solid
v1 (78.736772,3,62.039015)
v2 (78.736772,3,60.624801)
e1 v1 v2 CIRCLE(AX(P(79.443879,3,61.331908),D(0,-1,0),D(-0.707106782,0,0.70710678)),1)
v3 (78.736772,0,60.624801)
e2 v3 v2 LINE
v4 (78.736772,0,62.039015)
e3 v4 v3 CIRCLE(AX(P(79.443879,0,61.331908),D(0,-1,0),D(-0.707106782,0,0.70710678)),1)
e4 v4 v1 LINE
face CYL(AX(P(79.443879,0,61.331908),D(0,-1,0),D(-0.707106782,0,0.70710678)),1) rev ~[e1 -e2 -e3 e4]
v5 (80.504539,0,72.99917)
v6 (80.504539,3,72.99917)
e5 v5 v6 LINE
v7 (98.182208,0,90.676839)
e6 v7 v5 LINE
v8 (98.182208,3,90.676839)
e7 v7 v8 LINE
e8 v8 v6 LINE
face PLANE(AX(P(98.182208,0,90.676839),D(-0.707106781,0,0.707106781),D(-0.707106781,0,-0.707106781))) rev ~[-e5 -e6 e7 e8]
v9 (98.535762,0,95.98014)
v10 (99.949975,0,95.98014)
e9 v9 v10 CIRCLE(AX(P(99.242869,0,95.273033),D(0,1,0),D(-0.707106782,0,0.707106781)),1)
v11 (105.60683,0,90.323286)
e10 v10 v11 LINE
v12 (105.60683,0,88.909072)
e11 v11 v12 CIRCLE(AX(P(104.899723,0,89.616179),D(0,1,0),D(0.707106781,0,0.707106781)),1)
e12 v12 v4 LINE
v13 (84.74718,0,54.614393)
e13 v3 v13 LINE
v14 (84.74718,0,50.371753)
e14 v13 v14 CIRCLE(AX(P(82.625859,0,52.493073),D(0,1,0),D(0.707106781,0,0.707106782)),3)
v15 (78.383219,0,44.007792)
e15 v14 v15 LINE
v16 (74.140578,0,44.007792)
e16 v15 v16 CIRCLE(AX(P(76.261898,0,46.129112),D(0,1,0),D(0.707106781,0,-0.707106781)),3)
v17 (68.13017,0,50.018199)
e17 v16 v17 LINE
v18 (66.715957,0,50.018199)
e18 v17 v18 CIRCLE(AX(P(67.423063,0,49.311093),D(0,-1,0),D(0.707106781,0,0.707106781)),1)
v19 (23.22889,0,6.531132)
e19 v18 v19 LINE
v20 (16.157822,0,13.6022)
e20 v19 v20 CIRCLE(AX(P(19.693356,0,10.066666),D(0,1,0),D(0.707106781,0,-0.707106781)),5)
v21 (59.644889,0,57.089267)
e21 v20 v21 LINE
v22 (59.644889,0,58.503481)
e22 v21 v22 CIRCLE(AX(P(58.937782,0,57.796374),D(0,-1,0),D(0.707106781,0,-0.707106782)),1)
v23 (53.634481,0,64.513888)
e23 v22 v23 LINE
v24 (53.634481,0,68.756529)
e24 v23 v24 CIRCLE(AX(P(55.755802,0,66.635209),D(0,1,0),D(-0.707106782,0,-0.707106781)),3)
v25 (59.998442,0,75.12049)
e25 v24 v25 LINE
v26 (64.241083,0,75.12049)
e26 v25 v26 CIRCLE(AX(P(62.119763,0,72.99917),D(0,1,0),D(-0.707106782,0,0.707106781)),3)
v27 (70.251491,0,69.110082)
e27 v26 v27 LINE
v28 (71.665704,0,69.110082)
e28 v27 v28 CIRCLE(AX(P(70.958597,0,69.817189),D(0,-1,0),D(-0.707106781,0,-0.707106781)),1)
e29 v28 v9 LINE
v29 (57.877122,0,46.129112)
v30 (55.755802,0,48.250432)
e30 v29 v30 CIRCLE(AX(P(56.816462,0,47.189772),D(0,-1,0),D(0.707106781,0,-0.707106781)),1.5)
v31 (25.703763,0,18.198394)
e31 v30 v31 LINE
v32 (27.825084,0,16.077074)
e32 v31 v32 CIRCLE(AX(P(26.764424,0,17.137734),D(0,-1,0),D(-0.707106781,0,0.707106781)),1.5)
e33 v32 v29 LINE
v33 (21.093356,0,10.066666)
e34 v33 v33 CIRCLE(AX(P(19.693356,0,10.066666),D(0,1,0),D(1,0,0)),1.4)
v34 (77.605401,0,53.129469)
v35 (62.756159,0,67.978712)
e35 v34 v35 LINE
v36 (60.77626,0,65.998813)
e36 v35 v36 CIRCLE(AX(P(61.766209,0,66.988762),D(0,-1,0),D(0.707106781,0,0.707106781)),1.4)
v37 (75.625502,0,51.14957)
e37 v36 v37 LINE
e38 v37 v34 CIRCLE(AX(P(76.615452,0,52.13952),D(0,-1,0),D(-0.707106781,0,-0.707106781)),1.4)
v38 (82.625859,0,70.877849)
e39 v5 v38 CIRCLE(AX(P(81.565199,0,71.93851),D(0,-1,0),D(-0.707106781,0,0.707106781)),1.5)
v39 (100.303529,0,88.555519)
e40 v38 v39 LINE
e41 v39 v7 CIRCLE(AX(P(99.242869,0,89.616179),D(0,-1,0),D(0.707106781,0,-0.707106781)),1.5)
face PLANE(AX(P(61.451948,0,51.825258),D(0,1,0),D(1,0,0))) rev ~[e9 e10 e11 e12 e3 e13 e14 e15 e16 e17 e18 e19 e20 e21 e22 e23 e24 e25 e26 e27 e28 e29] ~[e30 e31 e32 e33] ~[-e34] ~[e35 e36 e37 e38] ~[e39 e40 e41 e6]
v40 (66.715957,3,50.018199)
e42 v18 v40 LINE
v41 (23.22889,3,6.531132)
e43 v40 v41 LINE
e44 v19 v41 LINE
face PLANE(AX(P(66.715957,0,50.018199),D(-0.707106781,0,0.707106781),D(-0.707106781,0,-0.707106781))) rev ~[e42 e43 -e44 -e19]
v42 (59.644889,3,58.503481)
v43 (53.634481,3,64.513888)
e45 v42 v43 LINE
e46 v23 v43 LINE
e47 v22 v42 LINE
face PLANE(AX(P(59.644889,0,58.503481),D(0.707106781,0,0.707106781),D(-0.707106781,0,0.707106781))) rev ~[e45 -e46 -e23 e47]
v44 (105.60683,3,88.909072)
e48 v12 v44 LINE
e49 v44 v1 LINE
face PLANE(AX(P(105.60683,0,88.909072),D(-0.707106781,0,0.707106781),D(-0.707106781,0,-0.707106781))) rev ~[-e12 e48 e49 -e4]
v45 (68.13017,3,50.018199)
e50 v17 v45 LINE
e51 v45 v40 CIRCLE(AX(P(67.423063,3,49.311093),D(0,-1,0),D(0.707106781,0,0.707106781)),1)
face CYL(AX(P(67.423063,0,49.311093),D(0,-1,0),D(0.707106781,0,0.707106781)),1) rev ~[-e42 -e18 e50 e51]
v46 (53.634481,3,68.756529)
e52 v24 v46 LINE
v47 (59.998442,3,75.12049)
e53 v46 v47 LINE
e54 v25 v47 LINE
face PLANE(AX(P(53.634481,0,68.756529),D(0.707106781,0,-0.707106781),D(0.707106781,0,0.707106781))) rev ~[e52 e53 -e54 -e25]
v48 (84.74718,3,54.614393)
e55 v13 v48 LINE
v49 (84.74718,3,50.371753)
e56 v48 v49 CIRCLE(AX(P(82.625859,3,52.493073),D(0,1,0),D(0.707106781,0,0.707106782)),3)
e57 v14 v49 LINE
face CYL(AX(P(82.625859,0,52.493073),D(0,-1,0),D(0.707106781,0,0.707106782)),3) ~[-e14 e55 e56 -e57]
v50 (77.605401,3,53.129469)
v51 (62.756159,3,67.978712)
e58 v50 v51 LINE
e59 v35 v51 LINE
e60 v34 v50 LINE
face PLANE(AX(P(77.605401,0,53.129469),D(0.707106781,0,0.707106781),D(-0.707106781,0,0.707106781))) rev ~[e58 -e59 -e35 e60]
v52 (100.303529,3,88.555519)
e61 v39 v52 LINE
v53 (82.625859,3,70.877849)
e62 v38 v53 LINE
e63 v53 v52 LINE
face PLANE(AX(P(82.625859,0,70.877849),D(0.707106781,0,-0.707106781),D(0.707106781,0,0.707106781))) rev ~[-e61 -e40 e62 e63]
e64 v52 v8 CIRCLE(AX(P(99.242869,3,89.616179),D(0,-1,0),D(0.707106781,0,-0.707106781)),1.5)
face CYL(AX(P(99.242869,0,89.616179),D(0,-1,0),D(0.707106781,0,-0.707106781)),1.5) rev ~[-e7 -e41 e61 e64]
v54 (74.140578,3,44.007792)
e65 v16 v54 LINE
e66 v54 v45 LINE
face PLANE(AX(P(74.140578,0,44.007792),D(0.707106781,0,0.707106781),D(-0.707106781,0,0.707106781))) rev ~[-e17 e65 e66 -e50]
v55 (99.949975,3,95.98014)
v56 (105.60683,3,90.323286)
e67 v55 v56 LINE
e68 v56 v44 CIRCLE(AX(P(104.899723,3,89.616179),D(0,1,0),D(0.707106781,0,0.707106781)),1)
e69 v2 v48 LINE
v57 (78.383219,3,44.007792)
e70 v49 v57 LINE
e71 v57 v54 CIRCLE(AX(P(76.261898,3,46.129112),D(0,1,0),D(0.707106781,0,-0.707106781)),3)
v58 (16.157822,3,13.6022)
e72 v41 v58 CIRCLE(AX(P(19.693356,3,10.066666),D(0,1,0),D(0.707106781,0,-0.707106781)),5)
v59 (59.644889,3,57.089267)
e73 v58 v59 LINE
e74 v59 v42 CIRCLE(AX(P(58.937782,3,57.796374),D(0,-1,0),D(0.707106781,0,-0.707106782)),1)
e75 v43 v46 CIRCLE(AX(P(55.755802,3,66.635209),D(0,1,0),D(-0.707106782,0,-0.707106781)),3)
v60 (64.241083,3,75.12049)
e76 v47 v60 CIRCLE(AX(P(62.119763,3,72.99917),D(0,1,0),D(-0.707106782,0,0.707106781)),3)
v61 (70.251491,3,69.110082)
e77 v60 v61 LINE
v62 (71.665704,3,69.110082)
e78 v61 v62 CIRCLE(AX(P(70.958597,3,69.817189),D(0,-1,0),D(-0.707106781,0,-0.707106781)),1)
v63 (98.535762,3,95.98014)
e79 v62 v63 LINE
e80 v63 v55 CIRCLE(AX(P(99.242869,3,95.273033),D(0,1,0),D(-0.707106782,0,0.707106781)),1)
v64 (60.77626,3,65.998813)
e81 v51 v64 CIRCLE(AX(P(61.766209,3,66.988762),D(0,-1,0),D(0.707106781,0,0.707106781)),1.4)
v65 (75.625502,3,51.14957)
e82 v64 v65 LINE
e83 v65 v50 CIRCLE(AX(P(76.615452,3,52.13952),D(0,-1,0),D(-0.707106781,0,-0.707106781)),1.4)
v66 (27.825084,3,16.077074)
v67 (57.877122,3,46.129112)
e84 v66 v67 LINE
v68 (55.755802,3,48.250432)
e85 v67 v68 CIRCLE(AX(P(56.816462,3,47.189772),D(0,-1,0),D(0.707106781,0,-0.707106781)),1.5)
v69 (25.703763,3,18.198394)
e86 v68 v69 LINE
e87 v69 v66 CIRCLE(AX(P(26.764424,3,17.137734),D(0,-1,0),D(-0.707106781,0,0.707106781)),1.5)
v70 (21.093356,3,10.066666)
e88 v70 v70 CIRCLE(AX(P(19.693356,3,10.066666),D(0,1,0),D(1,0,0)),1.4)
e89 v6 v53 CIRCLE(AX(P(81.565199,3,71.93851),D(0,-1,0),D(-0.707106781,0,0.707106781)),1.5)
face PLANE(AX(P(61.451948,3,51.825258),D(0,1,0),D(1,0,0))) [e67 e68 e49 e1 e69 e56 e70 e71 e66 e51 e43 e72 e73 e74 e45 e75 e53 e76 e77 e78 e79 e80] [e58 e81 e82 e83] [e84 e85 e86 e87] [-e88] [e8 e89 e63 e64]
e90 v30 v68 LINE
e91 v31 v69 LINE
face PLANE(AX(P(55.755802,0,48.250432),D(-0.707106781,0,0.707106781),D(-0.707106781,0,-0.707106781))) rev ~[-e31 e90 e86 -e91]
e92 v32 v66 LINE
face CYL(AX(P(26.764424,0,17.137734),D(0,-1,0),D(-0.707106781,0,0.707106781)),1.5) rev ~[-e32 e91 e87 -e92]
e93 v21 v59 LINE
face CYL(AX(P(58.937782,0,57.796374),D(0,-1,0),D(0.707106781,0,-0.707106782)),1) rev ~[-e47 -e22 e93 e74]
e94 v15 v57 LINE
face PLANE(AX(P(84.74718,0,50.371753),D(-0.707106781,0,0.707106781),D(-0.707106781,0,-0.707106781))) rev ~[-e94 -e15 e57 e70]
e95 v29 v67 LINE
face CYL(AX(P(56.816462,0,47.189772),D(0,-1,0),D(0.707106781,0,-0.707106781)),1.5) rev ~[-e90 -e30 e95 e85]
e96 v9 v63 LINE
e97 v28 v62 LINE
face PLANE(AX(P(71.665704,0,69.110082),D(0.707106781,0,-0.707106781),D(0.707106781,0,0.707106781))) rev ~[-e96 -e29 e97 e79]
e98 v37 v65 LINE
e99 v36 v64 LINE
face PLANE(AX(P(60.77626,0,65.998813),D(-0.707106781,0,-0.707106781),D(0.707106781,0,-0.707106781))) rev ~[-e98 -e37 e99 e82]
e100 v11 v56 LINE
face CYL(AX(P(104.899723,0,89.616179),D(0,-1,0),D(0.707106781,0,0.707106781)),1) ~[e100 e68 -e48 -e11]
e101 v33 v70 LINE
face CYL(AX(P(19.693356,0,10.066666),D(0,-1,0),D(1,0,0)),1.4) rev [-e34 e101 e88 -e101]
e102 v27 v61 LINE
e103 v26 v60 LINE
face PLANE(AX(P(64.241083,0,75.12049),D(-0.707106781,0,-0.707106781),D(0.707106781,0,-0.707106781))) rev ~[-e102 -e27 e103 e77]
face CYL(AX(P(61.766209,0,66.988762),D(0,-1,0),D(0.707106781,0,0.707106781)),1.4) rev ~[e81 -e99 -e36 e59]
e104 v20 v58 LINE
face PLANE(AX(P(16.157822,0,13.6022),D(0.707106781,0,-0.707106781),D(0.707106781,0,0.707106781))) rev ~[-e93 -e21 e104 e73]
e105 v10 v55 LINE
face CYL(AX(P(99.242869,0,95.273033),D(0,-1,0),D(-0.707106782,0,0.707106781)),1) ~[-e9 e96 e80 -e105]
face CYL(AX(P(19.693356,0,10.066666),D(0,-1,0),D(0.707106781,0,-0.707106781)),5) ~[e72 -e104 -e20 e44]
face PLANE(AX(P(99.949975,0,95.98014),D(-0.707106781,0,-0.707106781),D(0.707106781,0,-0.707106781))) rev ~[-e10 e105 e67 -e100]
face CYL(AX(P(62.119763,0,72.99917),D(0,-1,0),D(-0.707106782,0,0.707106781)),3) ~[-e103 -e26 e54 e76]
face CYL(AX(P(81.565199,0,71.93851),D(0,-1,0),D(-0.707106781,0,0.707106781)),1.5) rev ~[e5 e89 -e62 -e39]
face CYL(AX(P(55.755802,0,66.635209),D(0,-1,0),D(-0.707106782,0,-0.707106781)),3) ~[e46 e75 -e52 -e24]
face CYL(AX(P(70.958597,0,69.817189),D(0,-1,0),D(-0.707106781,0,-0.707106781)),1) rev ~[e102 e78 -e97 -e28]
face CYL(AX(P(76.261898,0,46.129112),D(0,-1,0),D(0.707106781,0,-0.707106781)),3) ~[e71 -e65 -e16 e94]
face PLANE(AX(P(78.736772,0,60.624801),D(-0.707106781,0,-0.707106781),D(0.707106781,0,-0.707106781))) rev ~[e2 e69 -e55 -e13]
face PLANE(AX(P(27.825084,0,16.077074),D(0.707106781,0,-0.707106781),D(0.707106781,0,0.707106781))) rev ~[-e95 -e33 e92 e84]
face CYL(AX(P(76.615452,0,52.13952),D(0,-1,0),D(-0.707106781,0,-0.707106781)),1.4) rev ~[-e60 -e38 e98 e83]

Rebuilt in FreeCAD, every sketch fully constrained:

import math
import FreeCAD as App
import Part
import Sketcher

doc = App.newDocument("Part")
body = doc.addObject("PartDesign::Body", "Body")

sketch1 = body.newObject("Sketcher::SketchObject", "Sketch")
sketch1.AttachmentSupport = (doc.getObject("XZ_Plane"), [""])
sketch1.MapMode = "FlatFace"
sketch1.addGeometry([
    Part.LineSegment(App.Vector(66.7, 50, 0), App.Vector(23.2, 6.5, 0)),
    Part.ArcOfCircle(Part.Circle(App.Vector(19.7, 10.1, 0), App.Vector(0, 0, 1), 5), math.radians(135), math.radians(315)),
    Part.LineSegment(App.Vector(16.2, 13.6, 0), App.Vector(59.6, 57.1, 0)),
    Part.ArcOfCircle(Part.Circle(App.Vector(58.9, 57.8, 0), App.Vector(0, 0, 1), 1), math.radians(-45), math.radians(45)),
    Part.LineSegment(App.Vector(59.6, 58.5, 0), App.Vector(53.6, 64.5, 0)),
    Part.ArcOfCircle(Part.Circle(App.Vector(55.8, 66.6, 0), App.Vector(0, 0, 1), 3), math.radians(135), math.radians(225)),
    Part.LineSegment(App.Vector(53.6, 68.8, 0), App.Vector(60, 75.1, 0)),
    Part.ArcOfCircle(Part.Circle(App.Vector(62.1, 73, 0), App.Vector(0, 0, 1), 3), math.radians(45), math.radians(135)),
    Part.LineSegment(App.Vector(64.2, 75.1, 0), App.Vector(70.3, 69.1, 0)),
    Part.ArcOfCircle(Part.Circle(App.Vector(71, 69.8, 0), App.Vector(0, 0, 1), 1), math.radians(-135), math.radians(-45)),
    Part.LineSegment(App.Vector(71.7, 69.1, 0), App.Vector(98.5, 96, 0)),
    Part.ArcOfCircle(Part.Circle(App.Vector(99.2, 95.3, 0), App.Vector(0, 0, 1), 1), math.radians(45), math.radians(135)),
    Part.LineSegment(App.Vector(99.9, 96, 0), App.Vector(105.6, 90.3, 0)),
    Part.ArcOfCircle(Part.Circle(App.Vector(104.9, 89.6, 0), App.Vector(0, 0, 1), 1), math.radians(-45), math.radians(45)),
    Part.LineSegment(App.Vector(105.6, 88.9, 0), App.Vector(78.7, 62, 0)),
    Part.ArcOfCircle(Part.Circle(App.Vector(79.4, 61.3, 0), App.Vector(0, 0, 1), 1), math.radians(135), math.radians(225)),
    Part.LineSegment(App.Vector(78.7, 60.6, 0), App.Vector(84.7, 54.6, 0)),
    Part.ArcOfCircle(Part.Circle(App.Vector(82.6, 52.5, 0), App.Vector(0, 0, 1), 3), math.radians(-45), math.radians(45)),
    Part.LineSegment(App.Vector(84.7, 50.4, 0), App.Vector(78.4, 44, 0)),
    Part.ArcOfCircle(Part.Circle(App.Vector(76.3, 46.1, 0), App.Vector(0, 0, 1), 3), math.radians(-135), math.radians(-45)),
    Part.LineSegment(App.Vector(74.1, 44, 0), App.Vector(68.1, 50, 0)),
    Part.ArcOfCircle(Part.Circle(App.Vector(67.4, 49.3, 0), App.Vector(0, 0, 1), 1), math.radians(45), math.radians(135)),
    Part.ArcOfCircle(Part.Circle(App.Vector(81.6, 71.9, 0), App.Vector(0, 0, 1), 1.5), math.radians(135), math.radians(315)),
    Part.LineSegment(App.Vector(82.6, 70.9, 0), App.Vector(100.3, 88.6, 0)),
    Part.ArcOfCircle(Part.Circle(App.Vector(99.2, 89.6, 0), App.Vector(0, 0, 1), 1.5), math.radians(-45), math.radians(135)),
    Part.LineSegment(App.Vector(98.2, 90.7, 0), App.Vector(80.5, 73, 0)),
    Part.ArcOfCircle(Part.Circle(App.Vector(61.8, 67, 0), App.Vector(0, 0, 1), 1.4), math.radians(45), math.radians(225)),
    Part.LineSegment(App.Vector(60.8, 66, 0), App.Vector(75.6, 51.1, 0)),
    Part.ArcOfCircle(Part.Circle(App.Vector(76.6, 52.1, 0), App.Vector(0, 0, 1), 1.4), math.radians(-135), math.radians(45)),
    Part.LineSegment(App.Vector(77.6, 53.1, 0), App.Vector(62.8, 68, 0)),
    Part.ArcOfCircle(Part.Circle(App.Vector(26.8, 17.1, 0), App.Vector(0, 0, 1), 1.5), math.radians(135), math.radians(315)),
    Part.LineSegment(App.Vector(27.8, 16.1, 0), App.Vector(57.9, 46.1, 0)),
    Part.ArcOfCircle(Part.Circle(App.Vector(56.8, 47.2, 0), App.Vector(0, 0, 1), 1.5), math.radians(-45), math.radians(135)),
    Part.LineSegment(App.Vector(55.8, 48.3, 0), App.Vector(25.7, 18.2, 0)),
    Part.Circle(App.Vector(19.7, 10.1, 0), App.Vector(0, 0, 1), 1.4),
], False)
sketch1.addConstraint([
    Sketcher.Constraint("Tangent", 0, 2, 1, 2),
    Sketcher.Constraint("Tangent", 1, 1, 2, 1),
    Sketcher.Constraint("Tangent", 2, 2, 3, 1),
    Sketcher.Constraint("Tangent", 3, 2, 4, 1),
    Sketcher.Constraint("Tangent", 4, 2, 5, 2),
    Sketcher.Constraint("Tangent", 5, 1, 6, 1),
    Sketcher.Constraint("Tangent", 6, 2, 7, 2),
    Sketcher.Constraint("Tangent", 7, 1, 8, 1),
    Sketcher.Constraint("Tangent", 8, 2, 9, 1),
    Sketcher.Constraint("Tangent", 9, 2, 10, 1),
    Sketcher.Constraint("Tangent", 10, 2, 11, 2),
    Sketcher.Constraint("Tangent", 11, 1, 12, 1),
    Sketcher.Constraint("Tangent", 12, 2, 13, 2),
    Sketcher.Constraint("Tangent", 13, 1, 14, 1),
    Sketcher.Constraint("Tangent", 14, 2, 15, 1),
    Sketcher.Constraint("Tangent", 15, 2, 16, 1),
    Sketcher.Constraint("Tangent", 16, 2, 17, 2),
    Sketcher.Constraint("Tangent", 17, 1, 18, 1),
    Sketcher.Constraint("Tangent", 18, 2, 19, 2),
    Sketcher.Constraint("Tangent", 19, 1, 20, 1),
    Sketcher.Constraint("Tangent", 20, 2, 21, 1),
    Sketcher.Constraint("Tangent", 21, 2, 0, 1),
    Sketcher.Constraint("Tangent", 22, 2, 23, 1),
    Sketcher.Constraint("Tangent", 23, 2, 24, 1),
    Sketcher.Constraint("Tangent", 24, 2, 25, 1),
    Sketcher.Constraint("Tangent", 25, 2, 22, 1),
    Sketcher.Constraint("Tangent", 26, 2, 27, 1),
    Sketcher.Constraint("Tangent", 27, 2, 28, 1),
    Sketcher.Constraint("Tangent", 28, 2, 29, 1),
    Sketcher.Constraint("Tangent", 29, 2, 26, 1),
    Sketcher.Constraint("Tangent", 30, 2, 31, 1),
    Sketcher.Constraint("Tangent", 31, 2, 32, 1),
    Sketcher.Constraint("Tangent", 32, 2, 33, 1),
    Sketcher.Constraint("Tangent", 33, 2, 30, 1),
    Sketcher.Constraint("Coincident", 34, 3, 1, 3),
    Sketcher.Constraint("Equal", 5, 7),
    Sketcher.Constraint("Equal", 3, 9),
    Sketcher.Constraint("Equal", 9, 11),
    Sketcher.Constraint("Equal", 11, 13),
    Sketcher.Constraint("Equal", 13, 15),
    Sketcher.Constraint("Equal", 7, 17),
    Sketcher.Constraint("Equal", 17, 19),
    Sketcher.Constraint("Equal", 15, 21),
    Sketcher.Constraint("Equal", 22, 24),
    Sketcher.Constraint("Equal", 26, 28),
    Sketcher.Constraint("Equal", 24, 30),
    Sketcher.Constraint("Equal", 30, 32),
    Sketcher.Constraint("Equal", 28, 34),
    Sketcher.Constraint("Parallel", 0, 2),
    Sketcher.Constraint("Perpendicular", 2, 4),
    Sketcher.Constraint("Perpendicular", 4, 6),
    Sketcher.Constraint("Perpendicular", 6, 8),
    Sketcher.Constraint("Perpendicular", 8, 10),
    Sketcher.Constraint("Perpendicular", 10, 12),
    Sketcher.Constraint("Perpendicular", 12, 14),
    Sketcher.Constraint("Perpendicular", 14, 16),
    Sketcher.Constraint("Perpendicular", 16, 18),
    Sketcher.Constraint("Perpendicular", 18, 20),
    Sketcher.Constraint("Perpendicular", 20, 23),
    Sketcher.Constraint("Perpendicular", 25, 27),
    Sketcher.Constraint("Perpendicular", 29, 31),
    Sketcher.Constraint("Horizontal", 13, 3, 24, 3),
    Sketcher.Constraint("Horizontal", 6, 2, 7, 1),
    Sketcher.Constraint("Horizontal", 7, 3, 25, 2),
    Sketcher.Constraint("Horizontal", 19, 3, 31, 2),
    Sketcher.Constraint("Vertical", 11, 3, 24, 3),
    Sketcher.Constraint("Vertical", 17, 3, 22, 2),
    Sketcher.Constraint("Vertical", 5, 3, 32, 2),
    Sketcher.Constraint("Equal", 0, 2),
    Sketcher.Constraint("Equal", 4, 8),
    Sketcher.Constraint("Equal", 10, 14),
    Sketcher.Constraint("Equal", 16, 20),
    Sketcher.Constraint("Radius", 1, 5.0),
    Sketcher.Constraint("Radius", 3, 1.0),
    Sketcher.Constraint("Radius", 5, 3.0),
    Sketcher.Constraint("Diameter", 34, 2.8),
    Sketcher.Constraint("Radius", 22, 1.5),
    Sketcher.Constraint("Distance", 6, 9.0),
    Sketcher.Constraint("Distance", 10, 38.0),
    Sketcher.Constraint("Distance", 23, 25.0),
    Sketcher.Constraint("Distance", 27, 21.0),
    Sketcher.Constraint("Distance", 0, 61.5),
    Sketcher.Constraint("Distance", 31, 42.5),
    Sketcher.Constraint("DistanceX", -1, 1, 5, 3, 55.755802),
    Sketcher.Constraint("DistanceY", -1, 1, 1, 1, 13.6022),
    Sketcher.Constraint("DistanceX", -1, 1, 28, 2, 77.605401),
    Sketcher.Constraint("DistanceY", -1, 1, 28, 3, 52.13952),
])
pad1 = body.newObject("PartDesign::Pad", "Pad")
pad1.Profile = sketch1
pad1.Length = 3
pad1.Reversed = True

doc.recompute()
